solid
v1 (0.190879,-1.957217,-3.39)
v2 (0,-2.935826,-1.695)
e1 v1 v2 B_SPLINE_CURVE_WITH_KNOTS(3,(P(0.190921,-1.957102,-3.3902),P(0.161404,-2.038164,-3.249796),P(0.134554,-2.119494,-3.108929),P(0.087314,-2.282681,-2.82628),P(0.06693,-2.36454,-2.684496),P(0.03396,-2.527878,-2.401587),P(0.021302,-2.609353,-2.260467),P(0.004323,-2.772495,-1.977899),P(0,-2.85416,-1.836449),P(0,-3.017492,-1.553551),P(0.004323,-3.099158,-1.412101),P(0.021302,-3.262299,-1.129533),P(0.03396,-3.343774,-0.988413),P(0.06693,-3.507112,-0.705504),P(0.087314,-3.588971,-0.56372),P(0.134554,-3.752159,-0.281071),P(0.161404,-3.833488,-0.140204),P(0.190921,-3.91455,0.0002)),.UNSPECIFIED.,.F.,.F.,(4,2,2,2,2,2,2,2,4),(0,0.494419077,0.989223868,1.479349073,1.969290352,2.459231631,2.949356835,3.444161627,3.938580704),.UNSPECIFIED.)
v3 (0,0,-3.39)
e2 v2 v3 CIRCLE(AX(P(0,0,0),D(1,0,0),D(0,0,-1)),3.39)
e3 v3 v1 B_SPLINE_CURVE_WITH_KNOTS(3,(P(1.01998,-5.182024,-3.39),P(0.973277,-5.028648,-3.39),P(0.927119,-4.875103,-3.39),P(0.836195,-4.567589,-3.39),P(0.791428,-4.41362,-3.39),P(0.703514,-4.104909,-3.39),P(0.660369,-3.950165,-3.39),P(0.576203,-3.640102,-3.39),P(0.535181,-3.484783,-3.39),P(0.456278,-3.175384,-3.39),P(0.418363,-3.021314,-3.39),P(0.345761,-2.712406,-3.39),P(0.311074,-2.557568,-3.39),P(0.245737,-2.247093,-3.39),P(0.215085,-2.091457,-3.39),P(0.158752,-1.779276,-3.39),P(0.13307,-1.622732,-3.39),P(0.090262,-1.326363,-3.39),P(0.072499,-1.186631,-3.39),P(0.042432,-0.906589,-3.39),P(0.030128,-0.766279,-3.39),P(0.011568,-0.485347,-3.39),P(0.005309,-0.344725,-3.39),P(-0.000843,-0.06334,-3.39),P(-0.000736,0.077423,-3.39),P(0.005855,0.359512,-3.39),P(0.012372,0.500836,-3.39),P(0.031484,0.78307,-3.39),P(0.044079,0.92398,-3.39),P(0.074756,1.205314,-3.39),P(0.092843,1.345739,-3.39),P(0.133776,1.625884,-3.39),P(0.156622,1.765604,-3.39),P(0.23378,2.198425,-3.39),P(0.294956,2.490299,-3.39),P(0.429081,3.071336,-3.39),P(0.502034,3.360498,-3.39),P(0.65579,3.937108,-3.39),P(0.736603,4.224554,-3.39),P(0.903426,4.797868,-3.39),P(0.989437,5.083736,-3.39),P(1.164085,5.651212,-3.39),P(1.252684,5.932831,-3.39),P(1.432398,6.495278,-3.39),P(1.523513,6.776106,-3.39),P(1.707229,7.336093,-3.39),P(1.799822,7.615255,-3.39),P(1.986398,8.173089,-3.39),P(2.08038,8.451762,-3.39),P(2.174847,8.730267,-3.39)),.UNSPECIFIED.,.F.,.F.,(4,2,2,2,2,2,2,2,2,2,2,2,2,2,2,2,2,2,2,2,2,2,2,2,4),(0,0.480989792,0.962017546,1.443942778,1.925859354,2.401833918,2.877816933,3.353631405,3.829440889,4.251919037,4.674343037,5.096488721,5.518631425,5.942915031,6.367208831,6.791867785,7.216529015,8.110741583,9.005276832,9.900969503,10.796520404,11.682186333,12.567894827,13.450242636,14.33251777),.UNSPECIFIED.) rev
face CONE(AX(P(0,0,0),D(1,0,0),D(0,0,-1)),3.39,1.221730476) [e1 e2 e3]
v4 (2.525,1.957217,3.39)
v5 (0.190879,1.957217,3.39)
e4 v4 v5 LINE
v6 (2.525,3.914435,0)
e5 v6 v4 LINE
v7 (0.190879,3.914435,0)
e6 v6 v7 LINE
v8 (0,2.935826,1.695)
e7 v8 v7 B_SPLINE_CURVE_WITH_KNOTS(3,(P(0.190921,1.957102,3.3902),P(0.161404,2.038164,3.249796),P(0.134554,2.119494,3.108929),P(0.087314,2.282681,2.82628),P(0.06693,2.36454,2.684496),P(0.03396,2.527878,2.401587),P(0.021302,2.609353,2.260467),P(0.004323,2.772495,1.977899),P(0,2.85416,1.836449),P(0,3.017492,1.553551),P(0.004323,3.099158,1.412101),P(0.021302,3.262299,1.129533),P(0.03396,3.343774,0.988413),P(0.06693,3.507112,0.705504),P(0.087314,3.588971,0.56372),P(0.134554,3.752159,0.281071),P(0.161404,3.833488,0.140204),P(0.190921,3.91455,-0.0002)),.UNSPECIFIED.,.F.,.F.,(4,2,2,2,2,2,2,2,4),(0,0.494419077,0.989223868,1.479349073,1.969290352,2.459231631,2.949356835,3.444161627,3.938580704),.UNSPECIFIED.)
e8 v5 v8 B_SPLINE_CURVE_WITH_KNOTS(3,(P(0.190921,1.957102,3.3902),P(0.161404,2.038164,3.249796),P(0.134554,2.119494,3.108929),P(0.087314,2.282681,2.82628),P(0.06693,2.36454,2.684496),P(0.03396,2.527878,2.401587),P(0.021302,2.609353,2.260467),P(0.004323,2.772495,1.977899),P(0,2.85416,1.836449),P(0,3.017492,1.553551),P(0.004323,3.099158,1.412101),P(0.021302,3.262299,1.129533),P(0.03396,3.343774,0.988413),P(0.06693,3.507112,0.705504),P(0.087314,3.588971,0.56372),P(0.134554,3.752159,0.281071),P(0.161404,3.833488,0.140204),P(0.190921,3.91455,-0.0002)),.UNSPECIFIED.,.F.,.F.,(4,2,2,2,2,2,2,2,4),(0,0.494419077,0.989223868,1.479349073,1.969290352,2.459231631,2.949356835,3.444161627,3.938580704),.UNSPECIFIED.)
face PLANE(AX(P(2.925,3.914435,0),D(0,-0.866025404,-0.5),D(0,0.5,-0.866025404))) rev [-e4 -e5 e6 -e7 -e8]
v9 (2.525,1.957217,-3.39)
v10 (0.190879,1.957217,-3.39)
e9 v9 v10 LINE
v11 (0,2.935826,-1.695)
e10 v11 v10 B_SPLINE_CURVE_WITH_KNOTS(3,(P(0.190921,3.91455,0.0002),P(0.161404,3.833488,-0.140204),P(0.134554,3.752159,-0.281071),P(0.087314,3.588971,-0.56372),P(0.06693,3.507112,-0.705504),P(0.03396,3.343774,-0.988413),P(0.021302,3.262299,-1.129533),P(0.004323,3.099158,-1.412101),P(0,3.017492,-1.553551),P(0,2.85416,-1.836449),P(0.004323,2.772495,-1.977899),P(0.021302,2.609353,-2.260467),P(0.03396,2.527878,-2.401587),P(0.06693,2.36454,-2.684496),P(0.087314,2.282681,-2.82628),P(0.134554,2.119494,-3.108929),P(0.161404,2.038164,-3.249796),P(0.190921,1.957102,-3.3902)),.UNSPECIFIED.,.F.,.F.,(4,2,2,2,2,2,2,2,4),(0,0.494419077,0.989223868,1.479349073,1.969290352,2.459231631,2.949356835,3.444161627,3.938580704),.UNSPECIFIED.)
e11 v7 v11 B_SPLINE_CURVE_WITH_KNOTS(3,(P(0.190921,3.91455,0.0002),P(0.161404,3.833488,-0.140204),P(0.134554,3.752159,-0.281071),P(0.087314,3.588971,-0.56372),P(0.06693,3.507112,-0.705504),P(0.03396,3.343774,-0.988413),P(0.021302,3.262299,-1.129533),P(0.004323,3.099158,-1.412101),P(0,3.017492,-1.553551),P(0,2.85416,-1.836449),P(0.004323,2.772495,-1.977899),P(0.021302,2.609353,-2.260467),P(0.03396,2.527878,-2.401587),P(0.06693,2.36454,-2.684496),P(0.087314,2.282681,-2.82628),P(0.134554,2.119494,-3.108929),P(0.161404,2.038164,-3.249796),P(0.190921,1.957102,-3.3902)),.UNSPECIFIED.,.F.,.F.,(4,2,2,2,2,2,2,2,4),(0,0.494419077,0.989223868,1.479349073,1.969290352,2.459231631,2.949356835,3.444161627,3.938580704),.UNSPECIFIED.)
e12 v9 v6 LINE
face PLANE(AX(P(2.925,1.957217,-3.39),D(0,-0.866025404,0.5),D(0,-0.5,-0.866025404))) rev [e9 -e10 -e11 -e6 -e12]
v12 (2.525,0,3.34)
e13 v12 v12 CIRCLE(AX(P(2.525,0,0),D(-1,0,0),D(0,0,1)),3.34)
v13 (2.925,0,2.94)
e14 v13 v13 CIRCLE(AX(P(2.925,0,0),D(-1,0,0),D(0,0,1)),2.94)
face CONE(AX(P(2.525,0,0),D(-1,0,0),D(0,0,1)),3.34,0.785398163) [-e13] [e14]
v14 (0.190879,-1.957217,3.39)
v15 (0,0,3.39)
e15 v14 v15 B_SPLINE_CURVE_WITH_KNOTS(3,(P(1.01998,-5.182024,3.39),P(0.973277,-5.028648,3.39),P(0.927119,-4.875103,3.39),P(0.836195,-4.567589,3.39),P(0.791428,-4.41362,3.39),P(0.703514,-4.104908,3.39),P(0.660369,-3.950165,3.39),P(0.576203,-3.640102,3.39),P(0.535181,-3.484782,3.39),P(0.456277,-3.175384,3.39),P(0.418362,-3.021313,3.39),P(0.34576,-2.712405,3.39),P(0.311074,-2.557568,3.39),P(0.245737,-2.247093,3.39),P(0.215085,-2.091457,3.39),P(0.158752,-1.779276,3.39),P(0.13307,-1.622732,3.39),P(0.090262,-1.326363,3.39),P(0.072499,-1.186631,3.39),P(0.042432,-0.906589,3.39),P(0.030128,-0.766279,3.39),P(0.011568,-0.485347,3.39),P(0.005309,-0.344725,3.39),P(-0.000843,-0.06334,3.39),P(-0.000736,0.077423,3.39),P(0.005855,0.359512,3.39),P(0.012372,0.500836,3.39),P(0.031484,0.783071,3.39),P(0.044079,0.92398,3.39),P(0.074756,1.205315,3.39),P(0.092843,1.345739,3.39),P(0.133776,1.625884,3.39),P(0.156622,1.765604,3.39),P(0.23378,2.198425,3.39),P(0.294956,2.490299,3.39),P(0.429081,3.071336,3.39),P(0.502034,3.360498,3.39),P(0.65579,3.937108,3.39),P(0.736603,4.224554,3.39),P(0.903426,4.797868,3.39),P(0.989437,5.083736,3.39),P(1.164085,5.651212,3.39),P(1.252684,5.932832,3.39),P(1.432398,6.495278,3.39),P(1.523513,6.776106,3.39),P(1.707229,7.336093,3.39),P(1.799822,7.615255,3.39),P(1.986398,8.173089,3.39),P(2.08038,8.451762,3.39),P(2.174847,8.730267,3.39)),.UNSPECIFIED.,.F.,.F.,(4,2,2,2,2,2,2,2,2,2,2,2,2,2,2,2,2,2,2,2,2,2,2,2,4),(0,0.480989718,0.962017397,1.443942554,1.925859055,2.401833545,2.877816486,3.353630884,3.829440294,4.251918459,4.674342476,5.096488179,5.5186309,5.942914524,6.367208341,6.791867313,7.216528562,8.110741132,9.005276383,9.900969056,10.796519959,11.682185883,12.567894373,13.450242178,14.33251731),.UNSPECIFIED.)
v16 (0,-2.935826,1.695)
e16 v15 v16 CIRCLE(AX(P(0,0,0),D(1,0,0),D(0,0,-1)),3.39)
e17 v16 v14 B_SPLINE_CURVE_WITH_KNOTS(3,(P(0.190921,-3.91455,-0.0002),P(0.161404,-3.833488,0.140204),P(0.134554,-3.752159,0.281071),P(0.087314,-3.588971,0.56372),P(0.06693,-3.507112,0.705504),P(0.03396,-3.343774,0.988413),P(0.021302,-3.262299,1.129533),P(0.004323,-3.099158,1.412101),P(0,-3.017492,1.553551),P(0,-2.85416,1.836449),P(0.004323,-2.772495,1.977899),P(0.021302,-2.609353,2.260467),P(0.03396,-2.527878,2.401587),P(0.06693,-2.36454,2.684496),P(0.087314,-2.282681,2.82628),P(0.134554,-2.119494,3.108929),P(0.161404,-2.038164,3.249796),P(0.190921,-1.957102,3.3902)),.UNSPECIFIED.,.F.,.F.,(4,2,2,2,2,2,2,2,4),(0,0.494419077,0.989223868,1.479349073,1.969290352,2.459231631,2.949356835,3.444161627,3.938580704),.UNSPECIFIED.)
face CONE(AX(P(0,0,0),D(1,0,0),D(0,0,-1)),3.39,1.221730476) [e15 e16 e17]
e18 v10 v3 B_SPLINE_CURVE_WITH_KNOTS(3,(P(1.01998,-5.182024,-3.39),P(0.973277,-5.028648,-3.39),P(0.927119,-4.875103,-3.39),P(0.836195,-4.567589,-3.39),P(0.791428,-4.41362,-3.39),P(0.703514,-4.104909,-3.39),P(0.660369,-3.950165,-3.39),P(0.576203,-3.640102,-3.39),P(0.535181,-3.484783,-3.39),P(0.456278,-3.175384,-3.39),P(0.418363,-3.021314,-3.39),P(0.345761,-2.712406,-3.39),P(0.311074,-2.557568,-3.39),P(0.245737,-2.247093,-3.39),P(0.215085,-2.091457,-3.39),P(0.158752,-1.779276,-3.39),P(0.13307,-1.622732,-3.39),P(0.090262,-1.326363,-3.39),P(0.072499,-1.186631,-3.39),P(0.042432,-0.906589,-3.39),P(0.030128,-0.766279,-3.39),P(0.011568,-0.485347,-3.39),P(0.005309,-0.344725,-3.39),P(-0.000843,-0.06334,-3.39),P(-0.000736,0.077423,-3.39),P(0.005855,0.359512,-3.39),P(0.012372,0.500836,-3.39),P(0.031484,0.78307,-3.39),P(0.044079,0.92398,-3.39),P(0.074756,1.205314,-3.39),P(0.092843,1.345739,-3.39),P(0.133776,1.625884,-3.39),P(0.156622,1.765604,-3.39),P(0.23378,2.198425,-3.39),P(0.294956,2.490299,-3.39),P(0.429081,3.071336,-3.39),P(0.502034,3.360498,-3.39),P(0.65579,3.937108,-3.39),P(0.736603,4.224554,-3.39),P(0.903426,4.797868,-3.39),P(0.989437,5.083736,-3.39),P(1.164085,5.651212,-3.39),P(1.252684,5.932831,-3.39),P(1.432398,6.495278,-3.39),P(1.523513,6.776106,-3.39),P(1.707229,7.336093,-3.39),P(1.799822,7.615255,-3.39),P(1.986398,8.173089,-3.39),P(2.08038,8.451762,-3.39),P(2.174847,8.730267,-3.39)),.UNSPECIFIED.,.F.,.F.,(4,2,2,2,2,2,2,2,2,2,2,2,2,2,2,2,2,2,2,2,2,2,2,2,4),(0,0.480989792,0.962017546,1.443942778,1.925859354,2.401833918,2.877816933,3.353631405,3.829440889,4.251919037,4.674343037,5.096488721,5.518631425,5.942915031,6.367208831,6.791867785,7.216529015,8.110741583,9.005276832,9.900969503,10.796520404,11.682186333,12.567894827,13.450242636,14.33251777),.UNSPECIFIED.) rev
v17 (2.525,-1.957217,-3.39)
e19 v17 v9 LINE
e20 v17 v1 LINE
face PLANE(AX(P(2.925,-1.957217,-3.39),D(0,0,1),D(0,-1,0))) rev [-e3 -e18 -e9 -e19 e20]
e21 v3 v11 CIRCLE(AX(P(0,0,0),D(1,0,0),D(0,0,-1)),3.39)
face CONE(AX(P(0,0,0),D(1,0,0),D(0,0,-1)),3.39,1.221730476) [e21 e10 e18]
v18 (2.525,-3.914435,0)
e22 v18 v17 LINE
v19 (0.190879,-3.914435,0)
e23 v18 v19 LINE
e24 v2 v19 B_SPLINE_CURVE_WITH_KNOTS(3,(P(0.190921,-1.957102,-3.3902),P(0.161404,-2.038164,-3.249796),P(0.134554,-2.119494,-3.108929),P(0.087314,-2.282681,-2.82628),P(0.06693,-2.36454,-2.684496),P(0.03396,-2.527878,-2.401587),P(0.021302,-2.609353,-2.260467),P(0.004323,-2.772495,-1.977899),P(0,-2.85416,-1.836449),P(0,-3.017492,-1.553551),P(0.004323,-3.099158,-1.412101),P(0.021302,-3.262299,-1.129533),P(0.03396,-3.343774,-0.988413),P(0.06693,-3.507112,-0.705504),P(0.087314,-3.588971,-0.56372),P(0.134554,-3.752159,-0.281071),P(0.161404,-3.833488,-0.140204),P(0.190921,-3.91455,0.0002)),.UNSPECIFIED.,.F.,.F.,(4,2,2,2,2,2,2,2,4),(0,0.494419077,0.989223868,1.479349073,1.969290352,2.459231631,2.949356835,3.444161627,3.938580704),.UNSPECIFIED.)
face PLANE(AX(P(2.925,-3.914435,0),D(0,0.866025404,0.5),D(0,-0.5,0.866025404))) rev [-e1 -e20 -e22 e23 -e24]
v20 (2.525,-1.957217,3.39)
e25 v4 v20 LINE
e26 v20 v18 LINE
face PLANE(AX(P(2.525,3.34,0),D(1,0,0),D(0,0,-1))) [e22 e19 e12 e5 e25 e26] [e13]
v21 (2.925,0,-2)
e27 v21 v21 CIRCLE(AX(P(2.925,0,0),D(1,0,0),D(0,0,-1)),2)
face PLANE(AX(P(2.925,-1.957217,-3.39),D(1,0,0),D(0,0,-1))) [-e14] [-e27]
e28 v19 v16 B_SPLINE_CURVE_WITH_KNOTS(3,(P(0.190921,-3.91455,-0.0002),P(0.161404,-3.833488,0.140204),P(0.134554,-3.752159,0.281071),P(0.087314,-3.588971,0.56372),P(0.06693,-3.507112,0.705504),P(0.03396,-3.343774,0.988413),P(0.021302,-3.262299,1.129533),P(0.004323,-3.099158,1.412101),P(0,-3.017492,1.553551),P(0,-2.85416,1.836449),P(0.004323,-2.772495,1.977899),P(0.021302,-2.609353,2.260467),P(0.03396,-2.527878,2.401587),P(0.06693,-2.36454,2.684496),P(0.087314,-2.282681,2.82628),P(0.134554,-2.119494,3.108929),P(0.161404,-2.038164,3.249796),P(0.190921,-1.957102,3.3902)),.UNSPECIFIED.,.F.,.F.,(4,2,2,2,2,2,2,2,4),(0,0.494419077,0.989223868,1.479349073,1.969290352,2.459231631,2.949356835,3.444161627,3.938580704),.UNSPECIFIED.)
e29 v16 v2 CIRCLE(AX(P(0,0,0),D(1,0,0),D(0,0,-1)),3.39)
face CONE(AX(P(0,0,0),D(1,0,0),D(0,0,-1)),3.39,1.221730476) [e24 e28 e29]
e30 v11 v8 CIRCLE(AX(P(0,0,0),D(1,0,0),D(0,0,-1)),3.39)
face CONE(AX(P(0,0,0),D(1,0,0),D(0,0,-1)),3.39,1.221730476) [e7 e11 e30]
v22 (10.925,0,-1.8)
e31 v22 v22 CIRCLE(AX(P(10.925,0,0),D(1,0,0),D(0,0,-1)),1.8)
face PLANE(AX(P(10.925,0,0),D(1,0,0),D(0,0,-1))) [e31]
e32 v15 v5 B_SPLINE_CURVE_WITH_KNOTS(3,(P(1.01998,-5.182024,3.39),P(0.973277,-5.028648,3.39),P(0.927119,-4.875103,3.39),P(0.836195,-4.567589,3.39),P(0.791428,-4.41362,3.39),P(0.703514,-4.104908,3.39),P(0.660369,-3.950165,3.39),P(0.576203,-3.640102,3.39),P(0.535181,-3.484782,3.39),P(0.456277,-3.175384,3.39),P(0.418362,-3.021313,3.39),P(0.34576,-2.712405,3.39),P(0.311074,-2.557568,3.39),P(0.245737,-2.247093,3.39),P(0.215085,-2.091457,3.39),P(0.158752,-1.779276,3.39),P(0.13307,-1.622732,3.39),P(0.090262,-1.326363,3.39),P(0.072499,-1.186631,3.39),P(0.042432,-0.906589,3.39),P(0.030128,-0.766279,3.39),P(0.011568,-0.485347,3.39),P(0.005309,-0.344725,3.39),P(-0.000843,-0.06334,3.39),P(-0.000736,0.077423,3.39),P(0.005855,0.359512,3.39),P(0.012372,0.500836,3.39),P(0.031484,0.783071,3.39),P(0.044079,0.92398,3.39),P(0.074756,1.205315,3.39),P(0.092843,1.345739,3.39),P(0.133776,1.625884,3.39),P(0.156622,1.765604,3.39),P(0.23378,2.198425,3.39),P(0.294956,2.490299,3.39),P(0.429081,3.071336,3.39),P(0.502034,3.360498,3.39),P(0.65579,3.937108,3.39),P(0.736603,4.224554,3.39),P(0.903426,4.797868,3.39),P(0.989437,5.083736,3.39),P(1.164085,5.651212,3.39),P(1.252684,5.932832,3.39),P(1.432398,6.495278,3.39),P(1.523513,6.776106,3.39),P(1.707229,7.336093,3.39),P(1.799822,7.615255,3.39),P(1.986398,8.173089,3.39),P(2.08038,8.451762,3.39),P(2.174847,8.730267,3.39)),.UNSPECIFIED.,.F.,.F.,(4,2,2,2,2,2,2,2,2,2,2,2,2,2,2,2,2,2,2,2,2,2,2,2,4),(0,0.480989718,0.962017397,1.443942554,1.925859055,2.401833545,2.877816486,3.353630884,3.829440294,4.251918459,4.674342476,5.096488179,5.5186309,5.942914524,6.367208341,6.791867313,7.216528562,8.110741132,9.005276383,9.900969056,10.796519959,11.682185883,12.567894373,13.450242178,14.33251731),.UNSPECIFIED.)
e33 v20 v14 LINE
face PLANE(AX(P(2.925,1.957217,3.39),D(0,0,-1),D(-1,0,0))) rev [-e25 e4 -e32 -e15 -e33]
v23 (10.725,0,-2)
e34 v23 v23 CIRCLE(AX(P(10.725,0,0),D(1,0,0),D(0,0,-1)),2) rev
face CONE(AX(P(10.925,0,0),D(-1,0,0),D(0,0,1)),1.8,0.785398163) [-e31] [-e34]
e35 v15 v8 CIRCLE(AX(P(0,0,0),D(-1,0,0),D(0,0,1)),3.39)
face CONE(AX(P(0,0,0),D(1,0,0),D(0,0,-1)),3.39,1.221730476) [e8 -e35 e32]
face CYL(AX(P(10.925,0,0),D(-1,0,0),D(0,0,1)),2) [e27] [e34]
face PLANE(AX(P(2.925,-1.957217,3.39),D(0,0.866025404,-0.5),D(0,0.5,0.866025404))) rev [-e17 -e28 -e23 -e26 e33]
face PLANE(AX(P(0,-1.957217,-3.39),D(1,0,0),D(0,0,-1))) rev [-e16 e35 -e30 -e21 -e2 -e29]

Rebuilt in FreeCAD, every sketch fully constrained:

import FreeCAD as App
import Part
import Sketcher

V = App.Vector
Q = App.Units.Quantity


def edges_at(feature, points):
    """Names of the edges that pass closest to the given points."""
    edges = feature.Shape.Edges
    near = lambda p: min(range(len(edges)), key=lambda i: edges[i].distToShape(Part.Vertex(*p))[0])
    return sorted({f"Edge{near(p) + 1}" for p in points})


def add_polygon(sketch, points):
    """Adds a closed chain of lines whose ends are joined by coincident constraints."""
    first, n = sketch.GeometryCount, len(points)
    for a, b in zip(points, points[1:] + points[:1]):
        sketch.addGeometry(Part.LineSegment(App.Vector(*a, 0), App.Vector(*b, 0)), False)
    for i in range(n):
        sketch.addConstraint(Sketcher.Constraint("Coincident", first + i, 2, first + (i + 1) % n, 1))

doc = App.newDocument("Part")
body = doc.addObject("PartDesign::Body", "Body")

# Sketch on YZ plane
sketch1 = body.newObject("Sketcher::SketchObject", "Sketch")
sketch1.AttachmentSupport = (doc.getObject("YZ_Plane"), [""])
sketch1.MapMode = "FlatFace"
add_polygon(sketch1, [(-2, -3.4), (2, -3.4), (3.9, 0), (2, 3.4), (-2, 3.4), (-3.9, 0)])  # lines 0-5
sketch1.addConstraint([
    Sketcher.Constraint("Horizontal", 0),
    Sketcher.Constraint("Horizontal", 3),
    Sketcher.Constraint("Symmetric", 0, 2, 3, 2, -1, 1),
    Sketcher.Constraint("Symmetric", 1, 2, 4, 2, -1, 1),
    Sketcher.Constraint("PointOnObject", 1, 2, -1),
    Sketcher.Constraint("Parallel", 2, 5),
    Sketcher.Constraint("Vertical", 0, 2, 2, 2),
    Sketcher.Constraint("Angle", 1, Q("60 deg")),
    Sketcher.Constraint("DistanceY", 0, 2, -1, 1, 3.39),
    Sketcher.Constraint("DistanceX", 0, 1, 0, 2, 3.914435),
])
pad1 = body.newObject("PartDesign::Pad", "Pad")
pad1.Profile = sketch1
pad1.Length = 2.925

# Sketch on XY plane
sketch2 = body.newObject("Sketcher::SketchObject", "Sketch001")
sketch2.AttachmentSupport = (doc.getObject("XY_Plane"), [""])
sketch2.MapMode = "FlatFace"
add_polygon(sketch2, [(2.92, 2.94), (2.92, 3.91), (2.52, 3.91), (2.52, 3.34)])  # lines 0-3
sketch2.addConstraint([
    Sketcher.Constraint("Vertical", 0),
    Sketcher.Constraint("Horizontal", 1),
    Sketcher.Constraint("Vertical", 2),
    Sketcher.Constraint("Angle", 3, Q("-45 deg")),
    Sketcher.Constraint("DistanceX", 1, 2, 1, 1, 0.4),
    Sketcher.Constraint("DistanceY", -1, 1, 2, 2, 3.34),
    Sketcher.Constraint("DistanceX", -1, 1, 0, 2, 2.925),
    Sketcher.Constraint("DistanceY", 0, 1, 0, 2, 0.974435),
])
groove = body.newObject("PartDesign::Groove", "Groove")
groove.Profile = sketch2
groove.ReferenceAxis = (sketch2, ["H_Axis"])
groove.Angle = 360

# Sketch on XY plane
sketch3 = body.newObject("Sketcher::SketchObject", "Sketch002")
sketch3.AttachmentSupport = (doc.getObject("XY_Plane"), [""])
sketch3.MapMode = "FlatFace"
add_polygon(sketch3, [(0.19, 3.91), (0, 3.91), (0, 3.39)])  # lines 0-2
sketch3.addConstraint([
    Sketcher.Constraint("Horizontal", 0),
    Sketcher.Constraint("Vertical", 1),
    Sketcher.Constraint("PointOnObject", 0, 2, -2),
    Sketcher.Constraint("Angle", 2, Q("70 deg")),
    Sketcher.Constraint("DistanceY", -1, 1, 1, 2, 3.39),
    Sketcher.Constraint("DistanceX", 0, 2, 0, 1, 0.190879),
])
groove2 = body.newObject("PartDesign::Groove", "Groove001")
groove2.Profile = sketch3
groove2.ReferenceAxis = (sketch3, ["H_Axis"])
groove2.Angle = 360

# Sketch on YZ plane
sketch4 = body.newObject("Sketcher::SketchObject", "Sketch003")
sketch4.AttachmentSupport = (doc.getObject("YZ_Plane"), [""])
sketch4.MapMode = "FlatFace"
sketch4.AttachmentOffset = App.Placement(V(0, 0, 2.925), App.Rotation())
sketch4.addGeometry(Part.Circle(V(0, 0, 0), V(0, 0, 1), 2), False)
sketch4.addConstraint([
    Sketcher.Constraint("Coincident", 0, 3, -1, 1),
    Sketcher.Constraint("Diameter", 0, 4.0),
])
pad2 = body.newObject("PartDesign::Pad", "Pad001")
pad2.Profile = sketch4
pad2.Length = 8
doc.recompute()

chamfer = body.newObject("PartDesign::Chamfer", "Chamfer")
chamfer.Base = (pad2, edges_at(pad2, [(10.925, 0, 2)]))
chamfer.Size = 0.2

doc.recompute()
